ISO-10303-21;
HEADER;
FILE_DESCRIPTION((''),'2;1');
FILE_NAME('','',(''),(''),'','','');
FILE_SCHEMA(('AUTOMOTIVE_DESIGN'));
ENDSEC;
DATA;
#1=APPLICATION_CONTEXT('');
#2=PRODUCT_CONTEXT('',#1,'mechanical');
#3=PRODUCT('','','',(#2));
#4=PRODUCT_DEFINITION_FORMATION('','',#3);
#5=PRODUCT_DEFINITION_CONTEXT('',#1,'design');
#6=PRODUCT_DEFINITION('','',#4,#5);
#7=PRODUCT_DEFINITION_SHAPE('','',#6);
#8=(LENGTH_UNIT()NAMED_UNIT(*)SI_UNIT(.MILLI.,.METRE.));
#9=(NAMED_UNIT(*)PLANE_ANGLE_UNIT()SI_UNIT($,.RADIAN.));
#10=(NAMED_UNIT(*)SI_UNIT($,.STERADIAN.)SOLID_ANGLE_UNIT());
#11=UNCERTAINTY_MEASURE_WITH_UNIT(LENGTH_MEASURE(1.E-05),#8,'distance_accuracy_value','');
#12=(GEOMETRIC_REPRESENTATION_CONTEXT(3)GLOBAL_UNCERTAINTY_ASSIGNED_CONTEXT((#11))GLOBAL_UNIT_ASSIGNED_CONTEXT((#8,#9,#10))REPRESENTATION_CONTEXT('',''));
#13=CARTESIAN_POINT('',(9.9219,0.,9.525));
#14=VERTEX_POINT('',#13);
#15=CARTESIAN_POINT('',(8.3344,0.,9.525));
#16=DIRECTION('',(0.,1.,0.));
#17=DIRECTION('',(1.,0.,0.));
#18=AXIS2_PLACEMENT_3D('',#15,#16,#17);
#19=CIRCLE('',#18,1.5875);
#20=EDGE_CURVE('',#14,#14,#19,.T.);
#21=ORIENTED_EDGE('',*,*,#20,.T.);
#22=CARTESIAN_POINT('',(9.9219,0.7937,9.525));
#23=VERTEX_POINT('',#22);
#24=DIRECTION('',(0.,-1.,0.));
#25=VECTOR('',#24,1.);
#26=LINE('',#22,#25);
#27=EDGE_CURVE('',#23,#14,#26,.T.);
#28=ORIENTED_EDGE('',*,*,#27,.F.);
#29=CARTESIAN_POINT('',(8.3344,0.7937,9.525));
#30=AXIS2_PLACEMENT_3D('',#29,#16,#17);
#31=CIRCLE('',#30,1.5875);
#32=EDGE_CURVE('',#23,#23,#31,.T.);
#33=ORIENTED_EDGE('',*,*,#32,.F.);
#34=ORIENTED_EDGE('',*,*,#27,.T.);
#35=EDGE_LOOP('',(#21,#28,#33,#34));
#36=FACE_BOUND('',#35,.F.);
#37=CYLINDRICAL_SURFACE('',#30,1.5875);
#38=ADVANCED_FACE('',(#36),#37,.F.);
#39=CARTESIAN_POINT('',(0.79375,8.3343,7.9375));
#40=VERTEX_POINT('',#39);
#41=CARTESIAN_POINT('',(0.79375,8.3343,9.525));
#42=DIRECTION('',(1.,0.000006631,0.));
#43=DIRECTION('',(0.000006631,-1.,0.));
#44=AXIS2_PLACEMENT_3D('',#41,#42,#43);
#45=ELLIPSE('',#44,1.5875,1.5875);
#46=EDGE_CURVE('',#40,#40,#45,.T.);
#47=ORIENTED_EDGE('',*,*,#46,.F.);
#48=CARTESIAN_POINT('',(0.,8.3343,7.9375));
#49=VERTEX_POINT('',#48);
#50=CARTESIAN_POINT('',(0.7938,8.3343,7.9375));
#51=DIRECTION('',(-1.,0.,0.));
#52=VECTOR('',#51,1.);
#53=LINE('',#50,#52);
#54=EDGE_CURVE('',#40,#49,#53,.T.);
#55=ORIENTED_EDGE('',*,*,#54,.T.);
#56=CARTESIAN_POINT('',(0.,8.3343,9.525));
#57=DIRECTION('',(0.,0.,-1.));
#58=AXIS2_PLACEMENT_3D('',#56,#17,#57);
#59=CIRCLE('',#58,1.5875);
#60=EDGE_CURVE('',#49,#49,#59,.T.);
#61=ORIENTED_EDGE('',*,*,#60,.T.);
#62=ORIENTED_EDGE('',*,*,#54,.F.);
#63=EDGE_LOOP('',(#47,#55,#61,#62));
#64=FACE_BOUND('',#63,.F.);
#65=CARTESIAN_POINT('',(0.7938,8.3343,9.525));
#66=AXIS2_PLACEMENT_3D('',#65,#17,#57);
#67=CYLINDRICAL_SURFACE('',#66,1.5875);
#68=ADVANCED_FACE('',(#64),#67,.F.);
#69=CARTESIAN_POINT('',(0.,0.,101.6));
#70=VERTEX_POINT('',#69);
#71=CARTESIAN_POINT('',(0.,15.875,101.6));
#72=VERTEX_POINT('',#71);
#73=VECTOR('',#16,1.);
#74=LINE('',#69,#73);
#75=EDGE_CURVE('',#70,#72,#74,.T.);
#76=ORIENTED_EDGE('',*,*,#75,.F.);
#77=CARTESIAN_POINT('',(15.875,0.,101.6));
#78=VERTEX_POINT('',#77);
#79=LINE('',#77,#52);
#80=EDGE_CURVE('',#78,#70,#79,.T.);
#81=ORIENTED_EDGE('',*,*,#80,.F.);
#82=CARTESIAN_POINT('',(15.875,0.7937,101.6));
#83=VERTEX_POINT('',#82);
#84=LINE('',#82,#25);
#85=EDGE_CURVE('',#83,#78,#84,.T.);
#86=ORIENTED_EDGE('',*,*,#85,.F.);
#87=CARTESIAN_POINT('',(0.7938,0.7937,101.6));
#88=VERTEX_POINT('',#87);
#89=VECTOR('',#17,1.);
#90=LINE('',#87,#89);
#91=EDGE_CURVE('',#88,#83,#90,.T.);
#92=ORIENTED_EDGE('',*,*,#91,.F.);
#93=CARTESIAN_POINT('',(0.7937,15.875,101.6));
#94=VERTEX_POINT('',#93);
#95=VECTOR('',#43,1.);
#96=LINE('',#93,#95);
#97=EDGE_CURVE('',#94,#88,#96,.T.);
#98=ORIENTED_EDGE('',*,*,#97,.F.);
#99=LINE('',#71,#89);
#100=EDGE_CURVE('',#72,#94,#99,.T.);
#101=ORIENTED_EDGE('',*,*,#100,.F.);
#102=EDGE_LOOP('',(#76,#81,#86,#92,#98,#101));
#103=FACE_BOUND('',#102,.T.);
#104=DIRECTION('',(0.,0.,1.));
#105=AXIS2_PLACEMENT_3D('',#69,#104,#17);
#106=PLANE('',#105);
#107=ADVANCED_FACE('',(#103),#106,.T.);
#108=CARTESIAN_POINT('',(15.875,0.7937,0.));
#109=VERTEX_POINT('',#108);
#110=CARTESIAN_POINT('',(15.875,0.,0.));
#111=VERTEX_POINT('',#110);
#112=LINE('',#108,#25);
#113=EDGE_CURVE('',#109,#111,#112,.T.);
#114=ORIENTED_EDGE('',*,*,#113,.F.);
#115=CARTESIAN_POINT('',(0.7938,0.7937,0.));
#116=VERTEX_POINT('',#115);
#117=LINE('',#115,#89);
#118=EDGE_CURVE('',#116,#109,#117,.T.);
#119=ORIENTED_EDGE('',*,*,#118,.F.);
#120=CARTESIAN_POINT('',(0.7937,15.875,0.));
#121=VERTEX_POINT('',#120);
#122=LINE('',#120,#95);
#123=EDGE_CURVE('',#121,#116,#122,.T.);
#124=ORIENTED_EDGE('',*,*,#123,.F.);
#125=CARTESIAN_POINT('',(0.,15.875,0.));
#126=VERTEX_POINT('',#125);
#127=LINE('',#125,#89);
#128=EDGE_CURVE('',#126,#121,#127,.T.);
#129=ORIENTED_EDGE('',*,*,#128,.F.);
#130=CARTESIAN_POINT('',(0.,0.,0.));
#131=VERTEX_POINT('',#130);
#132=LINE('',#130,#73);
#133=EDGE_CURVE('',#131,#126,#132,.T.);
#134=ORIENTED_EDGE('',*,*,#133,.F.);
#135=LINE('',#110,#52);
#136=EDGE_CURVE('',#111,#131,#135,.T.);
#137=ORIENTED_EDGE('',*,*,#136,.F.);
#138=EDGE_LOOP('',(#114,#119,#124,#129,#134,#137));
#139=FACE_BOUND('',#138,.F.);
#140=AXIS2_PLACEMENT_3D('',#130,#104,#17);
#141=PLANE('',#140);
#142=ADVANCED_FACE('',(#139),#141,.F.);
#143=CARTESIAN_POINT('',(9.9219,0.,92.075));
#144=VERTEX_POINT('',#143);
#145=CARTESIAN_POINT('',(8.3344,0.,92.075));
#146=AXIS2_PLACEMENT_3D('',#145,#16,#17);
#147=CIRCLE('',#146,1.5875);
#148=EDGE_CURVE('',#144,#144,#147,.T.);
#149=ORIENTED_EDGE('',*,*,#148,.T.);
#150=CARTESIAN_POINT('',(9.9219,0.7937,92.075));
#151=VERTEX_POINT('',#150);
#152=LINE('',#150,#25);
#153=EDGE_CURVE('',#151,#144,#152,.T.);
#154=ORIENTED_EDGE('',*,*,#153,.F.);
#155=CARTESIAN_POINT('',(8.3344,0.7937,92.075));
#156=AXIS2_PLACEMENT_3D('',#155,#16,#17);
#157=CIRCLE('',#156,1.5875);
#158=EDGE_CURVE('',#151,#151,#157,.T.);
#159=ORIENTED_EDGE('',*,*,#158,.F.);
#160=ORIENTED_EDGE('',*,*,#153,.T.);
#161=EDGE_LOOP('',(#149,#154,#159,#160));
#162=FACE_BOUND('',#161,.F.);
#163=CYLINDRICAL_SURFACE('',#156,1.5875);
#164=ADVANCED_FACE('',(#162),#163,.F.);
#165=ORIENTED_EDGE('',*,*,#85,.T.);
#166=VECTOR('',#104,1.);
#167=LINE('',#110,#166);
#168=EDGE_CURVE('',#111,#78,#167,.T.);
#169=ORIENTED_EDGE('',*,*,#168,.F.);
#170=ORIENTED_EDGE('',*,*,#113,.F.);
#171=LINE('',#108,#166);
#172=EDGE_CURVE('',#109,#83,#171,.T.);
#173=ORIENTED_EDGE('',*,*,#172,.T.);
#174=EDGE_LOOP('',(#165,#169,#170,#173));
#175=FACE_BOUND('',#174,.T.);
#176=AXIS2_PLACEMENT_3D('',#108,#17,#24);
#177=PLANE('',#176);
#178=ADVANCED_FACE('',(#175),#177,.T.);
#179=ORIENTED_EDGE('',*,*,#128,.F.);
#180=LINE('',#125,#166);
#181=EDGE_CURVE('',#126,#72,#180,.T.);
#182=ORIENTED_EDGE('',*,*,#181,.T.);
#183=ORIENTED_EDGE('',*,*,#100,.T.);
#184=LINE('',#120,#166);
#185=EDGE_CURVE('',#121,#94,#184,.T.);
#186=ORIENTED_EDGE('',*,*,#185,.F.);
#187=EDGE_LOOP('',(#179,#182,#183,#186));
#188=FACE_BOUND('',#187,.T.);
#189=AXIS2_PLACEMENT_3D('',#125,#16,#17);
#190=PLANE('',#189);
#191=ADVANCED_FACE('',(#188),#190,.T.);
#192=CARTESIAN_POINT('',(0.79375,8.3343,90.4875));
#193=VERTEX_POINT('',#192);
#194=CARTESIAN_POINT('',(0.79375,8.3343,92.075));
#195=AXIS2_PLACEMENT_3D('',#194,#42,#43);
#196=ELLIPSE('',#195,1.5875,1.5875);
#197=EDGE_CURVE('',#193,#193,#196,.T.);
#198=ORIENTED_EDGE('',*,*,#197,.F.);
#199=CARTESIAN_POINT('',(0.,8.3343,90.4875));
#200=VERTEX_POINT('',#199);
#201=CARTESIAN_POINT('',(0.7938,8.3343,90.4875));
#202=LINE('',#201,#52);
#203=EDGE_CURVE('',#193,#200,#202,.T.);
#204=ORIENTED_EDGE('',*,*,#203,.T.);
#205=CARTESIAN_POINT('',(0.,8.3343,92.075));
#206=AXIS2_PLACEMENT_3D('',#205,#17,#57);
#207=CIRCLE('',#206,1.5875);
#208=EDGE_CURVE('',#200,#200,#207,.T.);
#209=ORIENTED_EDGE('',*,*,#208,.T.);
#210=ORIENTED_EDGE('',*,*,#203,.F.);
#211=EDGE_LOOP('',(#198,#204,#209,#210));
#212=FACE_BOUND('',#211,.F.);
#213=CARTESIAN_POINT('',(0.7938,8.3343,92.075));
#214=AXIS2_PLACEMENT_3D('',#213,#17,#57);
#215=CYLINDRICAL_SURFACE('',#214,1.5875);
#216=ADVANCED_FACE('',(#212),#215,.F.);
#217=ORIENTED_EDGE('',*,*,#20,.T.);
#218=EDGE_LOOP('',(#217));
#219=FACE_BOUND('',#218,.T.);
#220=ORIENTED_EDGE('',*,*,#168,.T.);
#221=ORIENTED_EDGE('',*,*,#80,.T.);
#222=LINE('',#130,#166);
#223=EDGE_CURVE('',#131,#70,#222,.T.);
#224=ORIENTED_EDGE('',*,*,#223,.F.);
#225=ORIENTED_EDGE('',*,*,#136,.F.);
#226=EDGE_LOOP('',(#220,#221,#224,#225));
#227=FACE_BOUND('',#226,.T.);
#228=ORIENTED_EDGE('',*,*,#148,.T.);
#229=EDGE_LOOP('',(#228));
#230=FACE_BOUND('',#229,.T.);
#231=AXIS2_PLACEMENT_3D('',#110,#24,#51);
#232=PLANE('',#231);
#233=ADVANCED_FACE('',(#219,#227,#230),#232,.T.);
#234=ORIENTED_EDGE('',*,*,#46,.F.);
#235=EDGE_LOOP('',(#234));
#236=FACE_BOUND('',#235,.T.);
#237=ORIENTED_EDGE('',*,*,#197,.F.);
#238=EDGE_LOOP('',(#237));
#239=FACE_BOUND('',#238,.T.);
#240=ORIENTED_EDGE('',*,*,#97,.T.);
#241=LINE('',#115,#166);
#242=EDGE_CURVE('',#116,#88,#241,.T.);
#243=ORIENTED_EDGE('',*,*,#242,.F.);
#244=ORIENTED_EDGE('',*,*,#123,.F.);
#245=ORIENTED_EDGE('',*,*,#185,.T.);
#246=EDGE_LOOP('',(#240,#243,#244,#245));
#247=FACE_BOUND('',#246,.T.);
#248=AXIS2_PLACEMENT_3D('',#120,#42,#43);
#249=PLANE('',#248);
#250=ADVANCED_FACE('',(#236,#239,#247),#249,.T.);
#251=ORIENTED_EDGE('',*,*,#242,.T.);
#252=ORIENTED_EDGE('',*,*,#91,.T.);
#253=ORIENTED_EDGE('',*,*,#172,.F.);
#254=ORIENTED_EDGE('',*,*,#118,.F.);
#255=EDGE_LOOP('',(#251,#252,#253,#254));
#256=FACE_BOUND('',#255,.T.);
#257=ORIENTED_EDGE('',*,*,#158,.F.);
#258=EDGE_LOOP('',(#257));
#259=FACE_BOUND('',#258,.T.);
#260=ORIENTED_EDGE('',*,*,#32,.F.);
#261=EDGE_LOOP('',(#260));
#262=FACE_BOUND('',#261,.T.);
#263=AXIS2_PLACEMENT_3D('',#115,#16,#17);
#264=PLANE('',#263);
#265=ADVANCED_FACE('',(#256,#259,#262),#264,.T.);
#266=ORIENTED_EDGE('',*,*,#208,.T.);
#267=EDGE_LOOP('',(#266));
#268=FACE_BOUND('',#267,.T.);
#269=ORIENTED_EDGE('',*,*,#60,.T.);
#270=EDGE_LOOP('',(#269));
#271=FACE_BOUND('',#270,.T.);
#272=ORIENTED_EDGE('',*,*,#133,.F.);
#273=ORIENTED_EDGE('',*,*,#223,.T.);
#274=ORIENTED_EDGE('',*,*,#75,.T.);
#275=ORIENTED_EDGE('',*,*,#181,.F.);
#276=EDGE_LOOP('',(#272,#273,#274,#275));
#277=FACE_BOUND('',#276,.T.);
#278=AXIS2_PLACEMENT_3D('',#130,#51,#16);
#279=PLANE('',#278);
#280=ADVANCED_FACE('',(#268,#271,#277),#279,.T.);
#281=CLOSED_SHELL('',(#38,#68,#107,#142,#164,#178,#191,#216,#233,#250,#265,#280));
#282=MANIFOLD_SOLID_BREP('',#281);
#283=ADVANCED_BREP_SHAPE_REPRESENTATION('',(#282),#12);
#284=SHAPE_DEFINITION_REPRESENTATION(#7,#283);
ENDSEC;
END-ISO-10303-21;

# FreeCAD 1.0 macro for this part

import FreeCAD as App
import Part
import Sketcher
Q = App.Units.Quantity


def add_polygon(sketch, points):
    """Adds a closed chain of lines whose ends are joined by coincident constraints."""
    first, n = sketch.GeometryCount, len(points)
    for a, b in zip(points, points[1:] + points[:1]):
        sketch.addGeometry(Part.LineSegment(App.Vector(*a, 0), App.Vector(*b, 0)), False)
    for i in range(n):
        sketch.addConstraint(Sketcher.Constraint("Coincident", first + i, 2, first + (i + 1) % n, 1))

doc = App.newDocument("Part")
body = doc.addObject("PartDesign::Body", "Body")

# Sketch on XY plane
sketch1 = doc.addObject("Sketcher::SketchObject", "Sketch")
body.addObject(sketch1)
sketch1.AttachmentSupport = (doc.XY_Plane, [""])
sketch1.MapMode = "FlatFace"
add_polygon(sketch1, [(0, 15.9), (0, 0), (15.9, 0), (15.9, 0.8), (0.8, 0.8), (0.8, 15.9)])  # lines 0-5
sketch1.addConstraint([
    Sketcher.Constraint("Vertical", 0),
    Sketcher.Constraint("Horizontal", 1),
    Sketcher.Constraint("Vertical", 2),
    Sketcher.Constraint("Horizontal", 3),
    Sketcher.Constraint("Vertical", 4),
    Sketcher.Constraint("Horizontal", 5),
    Sketcher.Constraint("Coincident", 0, 2, -1, 1),
    Sketcher.Constraint("Equal", 1, 0),
    Sketcher.Constraint("Equal", 5, 2),
    Sketcher.Constraint("DistanceX", 1, 1, 1, 2, Q("0.625 in")),
    Sketcher.Constraint("DistanceX", 5, 2, 5, 1, Q("0.031248 in")),
])
pad1 = doc.addObject("PartDesign::Pad", "Pad")
body.addObject(pad1)
pad1.Profile = sketch1
pad1.Length = Q("4 in")

# Sketch on XZ plane
sketch2 = doc.addObject("Sketcher::SketchObject", "Sketch001")
body.addObject(sketch2)
sketch2.AttachmentSupport = (doc.XZ_Plane, [""])
sketch2.MapMode = "FlatFace"
sketch2.AttachmentOffset = App.Placement(App.Vector(0, 0, -0.031248 * 25.4), App.Rotation())
sketch2.addGeometry([
    Part.Circle(App.Vector(8.3, 9.5, 0), App.Vector(0, 0, 1), 1.6),
    Part.Circle(App.Vector(8.3, 92.1, 0), App.Vector(0, 0, 1), 1.6),
], False)
sketch2.addConstraint([
    Sketcher.Constraint("Equal", 0, 1),
    Sketcher.Constraint("Vertical", 0, 3, 1, 3),
    Sketcher.Constraint("Diameter", 0, Q("0.125 in")),
    Sketcher.Constraint("DistanceY", 0, 3, 1, 3, Q("3.25 in")),
    Sketcher.Constraint("DistanceY", -1, 1, 0, 3, Q("0.375 in")),
    Sketcher.Constraint("DistanceX", -1, 1, 0, 3, Q("0.328126 in")),
])
pocket1 = doc.addObject("PartDesign::Pocket", "Pocket")
body.addObject(pocket1)
pocket1.Profile = sketch2
pocket1.Type = "ThroughAll"
pocket1.Reversed = True

# Sketch on YZ plane
sketch3 = doc.addObject("Sketcher::SketchObject", "Sketch002")
body.addObject(sketch3)
sketch3.AttachmentSupport = (doc.YZ_Plane, [""])
sketch3.MapMode = "FlatFace"
sketch3.AttachmentOffset = App.Placement(App.Vector(0, 0, 0.031252 * 25.4), App.Rotation())
sketch3.addGeometry([
    Part.Circle(App.Vector(8.3, 9.5, 0), App.Vector(0, 0, 1), 1.6),
    Part.Circle(App.Vector(8.3, 92.1, 0), App.Vector(0, 0, 1), 1.6),
], False)
sketch3.addConstraint([
    Sketcher.Constraint("Equal", 0, 1),
    Sketcher.Constraint("Vertical", 0, 3, 1, 3),
    Sketcher.Constraint("Diameter", 0, Q("0.125 in")),
    Sketcher.Constraint("DistanceY", 0, 3, 1, 3, Q("3.25 in")),
    Sketcher.Constraint("DistanceY", -1, 1, 0, 3, Q("0.375 in")),
    Sketcher.Constraint("DistanceX", -1, 1, 0, 3, Q("0.328122 in")),
])
pocket2 = doc.addObject("PartDesign::Pocket", "Pocket001")
body.addObject(pocket2)
pocket2.Profile = sketch3
pocket2.Type = "ThroughAll"

doc.recompute()
